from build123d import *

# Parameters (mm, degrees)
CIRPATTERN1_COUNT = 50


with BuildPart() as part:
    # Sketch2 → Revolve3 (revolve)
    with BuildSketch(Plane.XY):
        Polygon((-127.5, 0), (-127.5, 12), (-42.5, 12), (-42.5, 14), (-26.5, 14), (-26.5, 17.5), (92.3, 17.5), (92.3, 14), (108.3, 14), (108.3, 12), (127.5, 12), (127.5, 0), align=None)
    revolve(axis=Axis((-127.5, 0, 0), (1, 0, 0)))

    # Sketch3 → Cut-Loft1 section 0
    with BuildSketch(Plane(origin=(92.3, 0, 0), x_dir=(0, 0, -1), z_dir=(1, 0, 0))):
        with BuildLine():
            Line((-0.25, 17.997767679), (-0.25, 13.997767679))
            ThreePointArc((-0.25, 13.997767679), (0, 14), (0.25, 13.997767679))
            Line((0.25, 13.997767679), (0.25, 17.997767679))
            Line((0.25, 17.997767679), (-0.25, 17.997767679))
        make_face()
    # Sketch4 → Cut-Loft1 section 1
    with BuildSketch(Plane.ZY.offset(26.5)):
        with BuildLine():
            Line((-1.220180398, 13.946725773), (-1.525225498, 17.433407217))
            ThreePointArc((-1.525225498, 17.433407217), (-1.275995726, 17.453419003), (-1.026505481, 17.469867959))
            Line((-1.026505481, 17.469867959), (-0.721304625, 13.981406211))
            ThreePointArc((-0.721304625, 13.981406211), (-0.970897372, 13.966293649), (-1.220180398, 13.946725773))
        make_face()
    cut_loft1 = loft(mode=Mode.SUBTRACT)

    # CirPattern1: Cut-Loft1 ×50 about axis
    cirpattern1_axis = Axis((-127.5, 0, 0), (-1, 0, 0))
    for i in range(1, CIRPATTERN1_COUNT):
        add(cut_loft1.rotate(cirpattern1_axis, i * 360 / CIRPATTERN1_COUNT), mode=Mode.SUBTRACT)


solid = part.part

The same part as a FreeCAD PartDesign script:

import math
import FreeCAD as App
import Part
import Sketcher
Q = App.Units.Quantity

doc = App.newDocument("Part")
body = doc.addObject("PartDesign::Body", "Body")

# Sketch on XY plane
sketch1 = body.newObject("Sketcher::SketchObject", "Sketch")
sketch1.AttachmentSupport = (doc.getObject("XY_Plane"), [""])
sketch1.MapMode = "FlatFace"
sketch1.addGeometry(Part.LineSegment(App.Vector(-127.5, 12, 0), App.Vector(-127.5, 0, 0)), False)
sketch1.addGeometry(Part.LineSegment(App.Vector(-127.5, 0, 0), App.Vector(127.5, 0, 0)), False)
sketch1.addGeometry(Part.LineSegment(App.Vector(127.5, 0, 0), App.Vector(127.5, 12, 0)), False)
sketch1.addGeometry(Part.LineSegment(App.Vector(127.5, 12, 0), App.Vector(108.3, 12, 0)), False)
sketch1.addGeometry(Part.LineSegment(App.Vector(108.3, 12, 0), App.Vector(108.3, 14, 0)), False)
sketch1.addGeometry(Part.LineSegment(App.Vector(108.3, 14, 0), App.Vector(92.3, 14, 0)), False)
sketch1.addGeometry(Part.LineSegment(App.Vector(92.3, 14, 0), App.Vector(92.3, 17.5, 0)), False)
sketch1.addGeometry(Part.LineSegment(App.Vector(92.3, 17.5, 0), App.Vector(-26.5, 17.5, 0)), False)
sketch1.addGeometry(Part.LineSegment(App.Vector(-26.5, 17.5, 0), App.Vector(-26.5, 14, 0)), False)
sketch1.addGeometry(Part.LineSegment(App.Vector(-26.5, 14, 0), App.Vector(-42.5, 14, 0)), False)
sketch1.addGeometry(Part.LineSegment(App.Vector(-42.5, 14, 0), App.Vector(-42.5, 12, 0)), False)
sketch1.addGeometry(Part.LineSegment(App.Vector(-42.5, 12, 0), App.Vector(-127.5, 12, 0)), False)
sketch1.addConstraint(Sketcher.Constraint("Coincident", 0, 2, 1, 1))
sketch1.addConstraint(Sketcher.Constraint("Coincident", 1, 2, 2, 1))
sketch1.addConstraint(Sketcher.Constraint("Coincident", 2, 2, 3, 1))
sketch1.addConstraint(Sketcher.Constraint("Coincident", 3, 2, 4, 1))
sketch1.addConstraint(Sketcher.Constraint("Coincident", 4, 2, 5, 1))
sketch1.addConstraint(Sketcher.Constraint("Coincident", 5, 2, 6, 1))
sketch1.addConstraint(Sketcher.Constraint("Coincident", 6, 2, 7, 1))
sketch1.addConstraint(Sketcher.Constraint("Coincident", 7, 2, 8, 1))
sketch1.addConstraint(Sketcher.Constraint("Coincident", 8, 2, 9, 1))
sketch1.addConstraint(Sketcher.Constraint("Coincident", 9, 2, 10, 1))
sketch1.addConstraint(Sketcher.Constraint("Coincident", 10, 2, 11, 1))
sketch1.addConstraint(Sketcher.Constraint("Coincident", 11, 2, 0, 1))
sketch1.addConstraint(Sketcher.Constraint("Vertical", 0))
sketch1.addConstraint(Sketcher.Constraint("Horizontal", 1))
sketch1.addConstraint(Sketcher.Constraint("Vertical", 2))
sketch1.addConstraint(Sketcher.Constraint("Horizontal", 3))
sketch1.addConstraint(Sketcher.Constraint("Vertical", 4))
sketch1.addConstraint(Sketcher.Constraint("Horizontal", 5))
sketch1.addConstraint(Sketcher.Constraint("Vertical", 6))
sketch1.addConstraint(Sketcher.Constraint("Horizontal", 7))
sketch1.addConstraint(Sketcher.Constraint("Vertical", 8))
sketch1.addConstraint(Sketcher.Constraint("Horizontal", 9))
sketch1.addConstraint(Sketcher.Constraint("Vertical", 10))
sketch1.addConstraint(Sketcher.Constraint("Horizontal", 11))
sketch1.addConstraint(Sketcher.Constraint("Symmetric", 0, 2, 1, 2, -1, 1))
sketch1.addConstraint(Sketcher.Constraint("Horizontal", 5, 2, 8, 2))
sketch1.addConstraint(Sketcher.Constraint("Horizontal", 3, 2, 10, 2))
sketch1.addConstraint(Sketcher.Constraint("Equal", 5, 9))
sketch1.addConstraint(Sketcher.Constraint("DistanceX", 1, 1, 1, 2, 255.0))
sketch1.addConstraint(Sketcher.Constraint("DistanceX", 5, 2, 5, 1, 16.0))
sketch1.addConstraint(Sketcher.Constraint("DistanceX", 11, 2, 11, 1, 85.0))
sketch1.addConstraint(Sketcher.Constraint("DistanceY", 0, 2, 0, 1, 12.0))
sketch1.addConstraint(Sketcher.Constraint("DistanceY", 4, 1, 4, 2, 2.0))
sketch1.addConstraint(Sketcher.Constraint("DistanceX", 3, 2, 3, 1, 19.2))
sketch1.addConstraint(Sketcher.Constraint("DistanceY", 6, 1, 6, 2, 3.5))
revolution = body.newObject("PartDesign::Revolution", "Revolution")
revolution.Profile = sketch1
revolution.ReferenceAxis = (sketch1, ["H_Axis"])
revolution.Angle = 360

# Sketch on YZ plane
sketch2 = body.newObject("Sketcher::SketchObject", "Sketch001")
sketch2.AttachmentSupport = (doc.getObject("YZ_Plane"), [""])
sketch2.MapMode = "FlatFace"
sketch2.AttachmentOffset = App.Placement(App.Vector(0, 0, 92.3), App.Rotation())
sketch2.addGeometry(Part.LineSegment(App.Vector(18, 0.2, 0), App.Vector(14, 0.2, 0)), False)
sketch2.addGeometry(Part.ArcOfCircle(Part.Circle(App.Vector(0, 0, 0), App.Vector(0, 0, 1), 14), math.radians(-1.02), math.radians(1.02)), False)
sketch2.addGeometry(Part.LineSegment(App.Vector(14, -0.2, 0), App.Vector(18, -0.2, 0)), False)
sketch2.addGeometry(Part.LineSegment(App.Vector(18, -0.2, 0), App.Vector(18, 0.2, 0)), False)
sketch2.addConstraint(Sketcher.Constraint("Coincident", 0, 2, 1, 2))
sketch2.addConstraint(Sketcher.Constraint("Coincident", 1, 1, 2, 1))
sketch2.addConstraint(Sketcher.Constraint("Coincident", 2, 2, 3, 1))
sketch2.addConstraint(Sketcher.Constraint("Coincident", 3, 2, 0, 1))
sketch2.addConstraint(Sketcher.Constraint("Horizontal", 0))
sketch2.addConstraint(Sketcher.Constraint("Horizontal", 2))
sketch2.addConstraint(Sketcher.Constraint("Vertical", 3))
sketch2.addConstraint(Sketcher.Constraint("Coincident", 1, 3, -1, 1))
sketch2.addConstraint(Sketcher.Constraint("Vertical", 0, 2, 1, 1))
sketch2.addConstraint(Sketcher.Constraint("Radius", 1, 13.999999))
sketch2.addConstraint(Sketcher.Constraint("DistanceX", 0, 2, 0, 1, 4.0))
sketch2.addConstraint(Sketcher.Constraint("DistanceY", 3, 1, 3, 2, 0.5))

# Sketch on YZ plane
sketch3 = body.newObject("Sketcher::SketchObject", "Sketch002")
sketch3.AttachmentSupport = (doc.getObject("YZ_Plane"), [""])
sketch3.MapMode = "FlatFace"
sketch3.AttachmentOffset = App.Placement(App.Vector(0, 0, -26.5), App.Rotation())
sketch3.addGeometry(Part.LineSegment(App.Vector(17.4, -1.5, 0), App.Vector(13.9, -1.2, 0)), False)
sketch3.addGeometry(Part.ArcOfCircle(Part.Circle(App.Vector(0, 0, 0), App.Vector(0, 0, 1), 14), math.radians(-5), math.radians(-2.95)), False)
sketch3.addGeometry(Part.LineSegment(App.Vector(14, -0.7, 0), App.Vector(17.5, -1, 0)), False)
sketch3.addGeometry(Part.ArcOfCircle(Part.Circle(App.Vector(0, 0, 0), App.Vector(0, 0, 1), 17.5), math.radians(-5), math.radians(-3.36)), False)
sketch3.addConstraint(Sketcher.Constraint("Coincident", 0, 2, 1, 1))
sketch3.addConstraint(Sketcher.Constraint("Coincident", 1, 2, 2, 1))
sketch3.addConstraint(Sketcher.Constraint("Coincident", 2, 2, 3, 2))
sketch3.addConstraint(Sketcher.Constraint("Coincident", 3, 1, 0, 1))
sketch3.addConstraint(Sketcher.Constraint("Coincident", 1, 3, -1, 1))
sketch3.addConstraint(Sketcher.Constraint("Coincident", 3, 3, -1, 1))
sketch3.addConstraint(Sketcher.Constraint("Parallel", 0, 2))
sketch3.addConstraint(Sketcher.Constraint("Radius", 1, 14.0))
sketch3.addConstraint(Sketcher.Constraint("Angle", 0, Q("175 deg")))
sketch3.addConstraint(Sketcher.Constraint("Distance", 0, 3.5))
sketch3.addConstraint(Sketcher.Constraint("DistanceX", 1, 2, 3, 1, 3.452001))
sketch3.addConstraint(Sketcher.Constraint("DistanceY", 0, 2, -1, 1, 1.22018))

subtractiveloft = body.newObject("PartDesign::SubtractiveLoft", "SubtractiveLoft")
subtractiveloft.Profile = sketch2
subtractiveloft.Sections = [sketch3]
doc.recompute()

polarpattern = body.newObject("PartDesign::PolarPattern", "PolarPattern")
polarpattern.Originals = [subtractiveloft]
polarpattern.Axis = (doc.getObject("X_Axis"), [""])
polarpattern.Angle = 360
polarpattern.Occurrences = 50
body.Tip = polarpattern

doc.recompute()
